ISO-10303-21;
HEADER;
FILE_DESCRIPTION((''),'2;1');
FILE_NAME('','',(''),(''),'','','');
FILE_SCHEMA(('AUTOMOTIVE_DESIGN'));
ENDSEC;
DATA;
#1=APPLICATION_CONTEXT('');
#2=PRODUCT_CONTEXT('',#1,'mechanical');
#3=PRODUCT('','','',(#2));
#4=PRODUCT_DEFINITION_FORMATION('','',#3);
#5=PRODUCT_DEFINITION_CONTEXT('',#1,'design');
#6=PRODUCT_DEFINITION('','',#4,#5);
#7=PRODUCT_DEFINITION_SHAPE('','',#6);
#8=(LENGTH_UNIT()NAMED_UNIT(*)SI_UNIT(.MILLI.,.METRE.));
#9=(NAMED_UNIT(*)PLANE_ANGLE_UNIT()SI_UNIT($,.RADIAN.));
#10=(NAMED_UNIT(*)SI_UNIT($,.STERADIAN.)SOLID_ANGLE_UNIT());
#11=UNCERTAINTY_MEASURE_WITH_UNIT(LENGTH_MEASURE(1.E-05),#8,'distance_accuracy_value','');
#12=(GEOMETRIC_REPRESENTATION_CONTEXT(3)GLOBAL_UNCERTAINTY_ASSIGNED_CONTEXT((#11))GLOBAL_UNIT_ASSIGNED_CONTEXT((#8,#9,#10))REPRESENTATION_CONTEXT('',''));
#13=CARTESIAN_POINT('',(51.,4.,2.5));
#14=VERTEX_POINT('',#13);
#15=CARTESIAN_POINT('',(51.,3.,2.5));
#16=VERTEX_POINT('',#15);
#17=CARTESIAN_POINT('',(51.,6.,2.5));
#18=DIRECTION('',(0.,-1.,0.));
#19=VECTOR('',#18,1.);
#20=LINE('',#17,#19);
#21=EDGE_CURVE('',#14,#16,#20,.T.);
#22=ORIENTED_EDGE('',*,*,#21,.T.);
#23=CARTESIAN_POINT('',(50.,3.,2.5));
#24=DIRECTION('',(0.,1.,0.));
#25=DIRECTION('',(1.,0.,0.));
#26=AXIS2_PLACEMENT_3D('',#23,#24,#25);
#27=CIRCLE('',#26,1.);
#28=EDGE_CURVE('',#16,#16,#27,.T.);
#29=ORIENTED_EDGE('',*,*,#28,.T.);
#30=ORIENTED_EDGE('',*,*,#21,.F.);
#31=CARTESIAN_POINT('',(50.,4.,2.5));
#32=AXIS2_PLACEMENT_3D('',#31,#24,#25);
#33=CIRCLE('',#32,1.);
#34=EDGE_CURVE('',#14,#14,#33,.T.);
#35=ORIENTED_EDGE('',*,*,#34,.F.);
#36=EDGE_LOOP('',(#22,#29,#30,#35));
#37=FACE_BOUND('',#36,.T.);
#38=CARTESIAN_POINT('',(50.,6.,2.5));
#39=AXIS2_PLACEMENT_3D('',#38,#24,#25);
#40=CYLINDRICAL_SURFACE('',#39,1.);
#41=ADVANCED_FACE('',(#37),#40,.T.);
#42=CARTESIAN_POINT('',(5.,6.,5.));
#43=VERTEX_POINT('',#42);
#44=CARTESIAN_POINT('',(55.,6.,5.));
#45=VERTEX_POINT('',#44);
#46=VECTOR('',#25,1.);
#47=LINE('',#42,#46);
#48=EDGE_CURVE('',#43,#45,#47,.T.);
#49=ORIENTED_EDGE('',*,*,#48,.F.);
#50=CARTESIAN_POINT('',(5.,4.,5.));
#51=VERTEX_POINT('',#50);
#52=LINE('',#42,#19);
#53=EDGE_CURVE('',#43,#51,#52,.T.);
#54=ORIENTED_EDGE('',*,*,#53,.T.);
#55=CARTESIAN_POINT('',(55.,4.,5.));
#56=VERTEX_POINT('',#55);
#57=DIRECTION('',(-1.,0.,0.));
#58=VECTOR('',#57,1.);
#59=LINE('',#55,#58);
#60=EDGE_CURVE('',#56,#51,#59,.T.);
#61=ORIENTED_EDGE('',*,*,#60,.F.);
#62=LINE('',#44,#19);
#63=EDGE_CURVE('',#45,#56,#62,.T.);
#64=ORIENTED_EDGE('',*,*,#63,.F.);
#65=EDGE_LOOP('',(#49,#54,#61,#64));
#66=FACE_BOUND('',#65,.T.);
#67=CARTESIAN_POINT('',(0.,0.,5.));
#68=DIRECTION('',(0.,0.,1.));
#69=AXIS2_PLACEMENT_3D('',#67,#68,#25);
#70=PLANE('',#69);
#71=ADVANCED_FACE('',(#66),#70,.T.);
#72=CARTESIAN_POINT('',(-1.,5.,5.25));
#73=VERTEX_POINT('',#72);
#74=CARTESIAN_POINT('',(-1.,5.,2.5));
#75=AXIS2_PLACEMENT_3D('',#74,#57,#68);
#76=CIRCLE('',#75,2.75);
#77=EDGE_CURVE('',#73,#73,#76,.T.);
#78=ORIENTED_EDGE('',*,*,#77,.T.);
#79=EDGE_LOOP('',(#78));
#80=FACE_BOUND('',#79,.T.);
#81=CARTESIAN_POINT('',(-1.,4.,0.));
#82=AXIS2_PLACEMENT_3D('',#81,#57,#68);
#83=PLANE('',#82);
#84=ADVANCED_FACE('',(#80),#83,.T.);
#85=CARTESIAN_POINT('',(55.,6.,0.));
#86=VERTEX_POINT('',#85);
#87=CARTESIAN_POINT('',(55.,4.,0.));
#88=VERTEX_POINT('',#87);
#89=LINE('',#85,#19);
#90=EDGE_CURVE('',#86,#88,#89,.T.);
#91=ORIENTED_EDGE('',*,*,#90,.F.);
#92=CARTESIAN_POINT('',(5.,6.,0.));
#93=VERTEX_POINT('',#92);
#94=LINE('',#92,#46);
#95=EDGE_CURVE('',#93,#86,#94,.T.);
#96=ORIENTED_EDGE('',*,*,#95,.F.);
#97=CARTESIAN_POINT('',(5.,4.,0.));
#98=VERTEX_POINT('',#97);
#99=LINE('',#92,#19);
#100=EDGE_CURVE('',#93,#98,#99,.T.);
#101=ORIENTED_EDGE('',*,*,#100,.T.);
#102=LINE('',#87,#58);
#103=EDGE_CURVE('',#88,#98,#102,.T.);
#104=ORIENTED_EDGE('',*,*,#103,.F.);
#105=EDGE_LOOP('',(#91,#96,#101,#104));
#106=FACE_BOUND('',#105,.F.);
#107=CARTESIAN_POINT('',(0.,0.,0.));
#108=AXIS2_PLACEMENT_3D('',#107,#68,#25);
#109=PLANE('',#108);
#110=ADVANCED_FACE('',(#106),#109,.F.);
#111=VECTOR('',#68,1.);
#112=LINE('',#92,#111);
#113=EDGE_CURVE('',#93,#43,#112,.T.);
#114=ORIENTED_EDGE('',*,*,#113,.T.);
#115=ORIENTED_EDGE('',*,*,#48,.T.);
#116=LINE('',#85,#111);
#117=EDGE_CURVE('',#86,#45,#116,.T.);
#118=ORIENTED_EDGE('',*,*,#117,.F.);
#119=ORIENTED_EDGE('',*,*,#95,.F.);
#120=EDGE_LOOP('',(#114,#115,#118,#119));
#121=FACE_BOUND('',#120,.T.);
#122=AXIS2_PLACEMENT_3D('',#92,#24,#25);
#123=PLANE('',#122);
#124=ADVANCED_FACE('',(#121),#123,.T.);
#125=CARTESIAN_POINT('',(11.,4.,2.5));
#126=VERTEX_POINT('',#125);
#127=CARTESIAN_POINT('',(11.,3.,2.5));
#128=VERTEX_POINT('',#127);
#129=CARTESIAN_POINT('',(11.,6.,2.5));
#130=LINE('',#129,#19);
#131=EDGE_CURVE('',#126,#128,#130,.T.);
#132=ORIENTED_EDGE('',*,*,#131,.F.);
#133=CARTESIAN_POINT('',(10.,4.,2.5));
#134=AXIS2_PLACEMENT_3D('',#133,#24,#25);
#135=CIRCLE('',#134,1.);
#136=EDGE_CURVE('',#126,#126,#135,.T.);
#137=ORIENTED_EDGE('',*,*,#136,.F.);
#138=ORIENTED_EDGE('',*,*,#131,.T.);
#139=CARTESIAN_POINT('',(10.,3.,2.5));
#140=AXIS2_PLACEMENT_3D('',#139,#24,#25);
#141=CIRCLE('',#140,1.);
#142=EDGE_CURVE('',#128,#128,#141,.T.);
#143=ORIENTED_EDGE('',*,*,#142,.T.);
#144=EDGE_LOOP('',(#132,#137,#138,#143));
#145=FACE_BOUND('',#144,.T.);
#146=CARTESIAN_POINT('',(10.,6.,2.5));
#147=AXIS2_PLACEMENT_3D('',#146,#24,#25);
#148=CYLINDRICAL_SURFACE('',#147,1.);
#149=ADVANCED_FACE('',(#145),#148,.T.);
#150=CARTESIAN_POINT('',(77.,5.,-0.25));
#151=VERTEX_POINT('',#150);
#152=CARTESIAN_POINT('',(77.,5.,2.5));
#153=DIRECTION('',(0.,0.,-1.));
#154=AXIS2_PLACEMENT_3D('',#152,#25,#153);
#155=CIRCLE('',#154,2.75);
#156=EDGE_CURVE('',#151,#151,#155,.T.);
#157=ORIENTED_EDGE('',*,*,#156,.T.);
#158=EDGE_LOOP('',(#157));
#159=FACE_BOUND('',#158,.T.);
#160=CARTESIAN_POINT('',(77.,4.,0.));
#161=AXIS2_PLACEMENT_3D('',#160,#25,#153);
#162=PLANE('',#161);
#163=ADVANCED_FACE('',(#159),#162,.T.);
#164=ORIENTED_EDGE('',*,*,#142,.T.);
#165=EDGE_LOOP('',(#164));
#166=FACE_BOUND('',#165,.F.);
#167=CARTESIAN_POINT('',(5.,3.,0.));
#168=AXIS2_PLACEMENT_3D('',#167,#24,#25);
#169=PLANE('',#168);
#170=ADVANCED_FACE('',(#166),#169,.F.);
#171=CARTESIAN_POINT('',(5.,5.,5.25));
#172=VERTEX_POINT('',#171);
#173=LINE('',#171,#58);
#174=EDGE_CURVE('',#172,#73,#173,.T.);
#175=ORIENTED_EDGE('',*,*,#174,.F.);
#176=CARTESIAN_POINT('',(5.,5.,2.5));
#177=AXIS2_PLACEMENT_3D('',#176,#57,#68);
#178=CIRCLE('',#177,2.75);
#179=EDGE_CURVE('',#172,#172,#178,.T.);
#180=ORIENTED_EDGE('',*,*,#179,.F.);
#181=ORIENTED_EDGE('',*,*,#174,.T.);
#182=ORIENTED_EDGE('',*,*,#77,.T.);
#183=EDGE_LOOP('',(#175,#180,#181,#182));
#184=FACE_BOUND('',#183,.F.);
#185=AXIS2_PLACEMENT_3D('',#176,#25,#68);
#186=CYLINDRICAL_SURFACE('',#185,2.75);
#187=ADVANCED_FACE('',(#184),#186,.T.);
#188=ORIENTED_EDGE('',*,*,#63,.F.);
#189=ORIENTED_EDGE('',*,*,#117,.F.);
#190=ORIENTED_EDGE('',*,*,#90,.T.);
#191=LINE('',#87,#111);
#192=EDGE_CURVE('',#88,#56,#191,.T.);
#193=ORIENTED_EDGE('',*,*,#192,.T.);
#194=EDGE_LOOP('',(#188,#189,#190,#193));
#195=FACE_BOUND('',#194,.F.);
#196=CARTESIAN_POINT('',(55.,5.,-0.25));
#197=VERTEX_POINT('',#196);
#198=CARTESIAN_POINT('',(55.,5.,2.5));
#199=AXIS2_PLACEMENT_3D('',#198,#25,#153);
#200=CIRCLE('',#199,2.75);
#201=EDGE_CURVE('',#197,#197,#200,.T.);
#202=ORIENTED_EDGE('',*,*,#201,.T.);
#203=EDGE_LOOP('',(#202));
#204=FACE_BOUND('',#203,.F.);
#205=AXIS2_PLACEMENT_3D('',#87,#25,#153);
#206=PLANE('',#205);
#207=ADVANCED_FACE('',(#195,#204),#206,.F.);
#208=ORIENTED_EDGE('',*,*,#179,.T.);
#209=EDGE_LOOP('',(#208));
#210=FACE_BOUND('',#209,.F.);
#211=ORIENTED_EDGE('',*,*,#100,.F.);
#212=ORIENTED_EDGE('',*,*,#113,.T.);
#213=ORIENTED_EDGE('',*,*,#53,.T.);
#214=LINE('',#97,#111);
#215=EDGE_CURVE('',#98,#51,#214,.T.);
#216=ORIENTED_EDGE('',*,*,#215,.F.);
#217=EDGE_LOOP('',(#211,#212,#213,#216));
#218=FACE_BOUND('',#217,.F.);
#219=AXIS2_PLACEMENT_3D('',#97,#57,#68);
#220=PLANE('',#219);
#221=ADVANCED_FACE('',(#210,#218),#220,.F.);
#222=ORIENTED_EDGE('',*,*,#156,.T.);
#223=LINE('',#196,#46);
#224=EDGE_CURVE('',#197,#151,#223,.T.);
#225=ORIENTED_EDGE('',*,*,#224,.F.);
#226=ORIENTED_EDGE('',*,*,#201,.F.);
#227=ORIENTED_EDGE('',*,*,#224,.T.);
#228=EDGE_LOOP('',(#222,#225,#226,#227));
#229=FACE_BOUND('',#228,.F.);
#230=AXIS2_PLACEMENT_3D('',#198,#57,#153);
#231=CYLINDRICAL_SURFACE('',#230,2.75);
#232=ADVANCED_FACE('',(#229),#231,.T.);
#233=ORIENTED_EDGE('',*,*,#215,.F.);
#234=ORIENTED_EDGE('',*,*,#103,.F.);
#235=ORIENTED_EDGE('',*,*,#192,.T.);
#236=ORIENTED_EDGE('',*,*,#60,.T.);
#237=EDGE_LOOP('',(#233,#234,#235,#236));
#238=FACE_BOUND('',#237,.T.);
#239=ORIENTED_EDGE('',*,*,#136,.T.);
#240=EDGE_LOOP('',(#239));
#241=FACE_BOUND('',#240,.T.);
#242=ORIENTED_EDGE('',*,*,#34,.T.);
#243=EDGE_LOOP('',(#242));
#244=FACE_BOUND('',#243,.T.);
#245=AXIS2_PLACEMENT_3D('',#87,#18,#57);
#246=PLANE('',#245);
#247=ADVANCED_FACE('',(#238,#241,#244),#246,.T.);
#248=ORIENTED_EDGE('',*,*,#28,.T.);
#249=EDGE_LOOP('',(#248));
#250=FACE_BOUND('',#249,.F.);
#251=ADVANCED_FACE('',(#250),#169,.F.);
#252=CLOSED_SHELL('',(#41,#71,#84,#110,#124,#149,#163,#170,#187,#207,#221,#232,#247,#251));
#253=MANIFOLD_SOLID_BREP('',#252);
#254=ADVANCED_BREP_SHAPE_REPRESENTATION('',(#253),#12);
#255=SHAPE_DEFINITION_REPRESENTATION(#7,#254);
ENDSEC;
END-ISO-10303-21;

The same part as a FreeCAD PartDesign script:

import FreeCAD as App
import Part
import Sketcher
from FreeCAD import Vector


def add_polygon(sketch, points):
    """Adds a closed chain of lines whose ends are joined by coincident constraints."""
    first, n = sketch.GeometryCount, len(points)
    for a, b in zip(points, points[1:] + points[:1]):
        sketch.addGeometry(Part.LineSegment(App.Vector(*a, 0), App.Vector(*b, 0)), False)
    for i in range(n):
        sketch.addConstraint(Sketcher.Constraint("Coincident", first + i, 2, first + (i + 1) % n, 1))

doc = App.newDocument("Part")
body = doc.addObject("PartDesign::Body", "Body")

# Sketch on XY plane
sketch1 = body.newObject("Sketcher::SketchObject", "Sketch")
sketch1.AttachmentSupport = (doc.getObject("XY_Plane"), [""])
sketch1.MapMode = "FlatFace"
add_polygon(sketch1, [(55, 6), (5, 6), (5, 4), (55, 4)])  # lines 0-3
sketch1.addConstraint([
    Sketcher.Constraint("Horizontal", 0),
    Sketcher.Constraint("Vertical", 1),
    Sketcher.Constraint("Horizontal", 2),
    Sketcher.Constraint("Vertical", 3),
    Sketcher.Constraint("DistanceX", 0, 2, 0, 1, 50.0),
    Sketcher.Constraint("DistanceX", -1, 1, 0, 2, 5.0),
    Sketcher.Constraint("DistanceY", 1, 2, 1, 1, 2.0),
    Sketcher.Constraint("DistanceY", -1, 1, 0, 2, 6.0),
])
pad1 = body.newObject("PartDesign::Pad", "Pad")
pad1.Profile = sketch1
pad1.Length = 5

# Sketch on XZ plane
sketch2 = body.newObject("Sketcher::SketchObject", "Sketch001")
sketch2.AttachmentSupport = (doc.getObject("XZ_Plane"), [""])
sketch2.MapMode = "FlatFace"
sketch2.AttachmentOffset = App.Placement(Vector(0, 0, -6), App.Rotation())
sketch2.addGeometry([
    Part.Circle(Vector(50, 2.5, 0), Vector(0, 0, 1), 1),
    Part.Circle(Vector(10, 2.5, 0), Vector(0, 0, 1), 1),
], False)
sketch2.addConstraint([
    Sketcher.Constraint("Equal", 0, 1),
    Sketcher.Constraint("Horizontal", 0, 3, 1, 3),
    Sketcher.Constraint("Diameter", 0, 2.0),
    Sketcher.Constraint("DistanceX", 1, 3, 0, 3, 40.0),
    Sketcher.Constraint("DistanceX", -1, 1, 0, 3, 50.0),
    Sketcher.Constraint("DistanceY", -1, 1, 0, 3, 2.5),
])
pad2 = body.newObject("PartDesign::Pad", "Pad001")
pad2.Profile = sketch2
pad2.Length = 3

# Sketch on YZ plane
sketch3 = body.newObject("Sketcher::SketchObject", "Sketch002")
sketch3.AttachmentSupport = (doc.getObject("YZ_Plane"), [""])
sketch3.MapMode = "FlatFace"
sketch3.AttachmentOffset = App.Placement(Vector(0, 0, 55), App.Rotation())
sketch3.addGeometry(Part.Circle(Vector(5, 2.5, 0), Vector(0, 0, 1), 2.8), False)
sketch3.addConstraint([
    Sketcher.Constraint("Diameter", 0, 5.5),
    Sketcher.Constraint("DistanceX", -1, 1, 0, 3, 5.0),
    Sketcher.Constraint("DistanceY", -1, 1, 0, 3, 2.5),
])
pad3 = body.newObject("PartDesign::Pad", "Pad002")
pad3.Profile = sketch3
pad3.Length = 22

# Sketch on YZ plane
sketch4 = body.newObject("Sketcher::SketchObject", "Sketch003")
sketch4.AttachmentSupport = (doc.getObject("YZ_Plane"), [""])
sketch4.MapMode = "FlatFace"
sketch4.AttachmentOffset = App.Placement(Vector(0, 0, 5), App.Rotation())
sketch4.addGeometry(Part.Circle(Vector(5, 2.5, 0), Vector(0, 0, 1), 2.8), False)
sketch4.addConstraint([
    Sketcher.Constraint("Diameter", 0, 5.5),
    Sketcher.Constraint("DistanceX", -1, 1, 0, 3, 5.0),
    Sketcher.Constraint("DistanceY", -1, 1, 0, 3, 2.5),
])
pad4 = body.newObject("PartDesign::Pad", "Pad003")
pad4.Profile = sketch4
pad4.Length = 6
pad4.Reversed = True

doc.recompute()
